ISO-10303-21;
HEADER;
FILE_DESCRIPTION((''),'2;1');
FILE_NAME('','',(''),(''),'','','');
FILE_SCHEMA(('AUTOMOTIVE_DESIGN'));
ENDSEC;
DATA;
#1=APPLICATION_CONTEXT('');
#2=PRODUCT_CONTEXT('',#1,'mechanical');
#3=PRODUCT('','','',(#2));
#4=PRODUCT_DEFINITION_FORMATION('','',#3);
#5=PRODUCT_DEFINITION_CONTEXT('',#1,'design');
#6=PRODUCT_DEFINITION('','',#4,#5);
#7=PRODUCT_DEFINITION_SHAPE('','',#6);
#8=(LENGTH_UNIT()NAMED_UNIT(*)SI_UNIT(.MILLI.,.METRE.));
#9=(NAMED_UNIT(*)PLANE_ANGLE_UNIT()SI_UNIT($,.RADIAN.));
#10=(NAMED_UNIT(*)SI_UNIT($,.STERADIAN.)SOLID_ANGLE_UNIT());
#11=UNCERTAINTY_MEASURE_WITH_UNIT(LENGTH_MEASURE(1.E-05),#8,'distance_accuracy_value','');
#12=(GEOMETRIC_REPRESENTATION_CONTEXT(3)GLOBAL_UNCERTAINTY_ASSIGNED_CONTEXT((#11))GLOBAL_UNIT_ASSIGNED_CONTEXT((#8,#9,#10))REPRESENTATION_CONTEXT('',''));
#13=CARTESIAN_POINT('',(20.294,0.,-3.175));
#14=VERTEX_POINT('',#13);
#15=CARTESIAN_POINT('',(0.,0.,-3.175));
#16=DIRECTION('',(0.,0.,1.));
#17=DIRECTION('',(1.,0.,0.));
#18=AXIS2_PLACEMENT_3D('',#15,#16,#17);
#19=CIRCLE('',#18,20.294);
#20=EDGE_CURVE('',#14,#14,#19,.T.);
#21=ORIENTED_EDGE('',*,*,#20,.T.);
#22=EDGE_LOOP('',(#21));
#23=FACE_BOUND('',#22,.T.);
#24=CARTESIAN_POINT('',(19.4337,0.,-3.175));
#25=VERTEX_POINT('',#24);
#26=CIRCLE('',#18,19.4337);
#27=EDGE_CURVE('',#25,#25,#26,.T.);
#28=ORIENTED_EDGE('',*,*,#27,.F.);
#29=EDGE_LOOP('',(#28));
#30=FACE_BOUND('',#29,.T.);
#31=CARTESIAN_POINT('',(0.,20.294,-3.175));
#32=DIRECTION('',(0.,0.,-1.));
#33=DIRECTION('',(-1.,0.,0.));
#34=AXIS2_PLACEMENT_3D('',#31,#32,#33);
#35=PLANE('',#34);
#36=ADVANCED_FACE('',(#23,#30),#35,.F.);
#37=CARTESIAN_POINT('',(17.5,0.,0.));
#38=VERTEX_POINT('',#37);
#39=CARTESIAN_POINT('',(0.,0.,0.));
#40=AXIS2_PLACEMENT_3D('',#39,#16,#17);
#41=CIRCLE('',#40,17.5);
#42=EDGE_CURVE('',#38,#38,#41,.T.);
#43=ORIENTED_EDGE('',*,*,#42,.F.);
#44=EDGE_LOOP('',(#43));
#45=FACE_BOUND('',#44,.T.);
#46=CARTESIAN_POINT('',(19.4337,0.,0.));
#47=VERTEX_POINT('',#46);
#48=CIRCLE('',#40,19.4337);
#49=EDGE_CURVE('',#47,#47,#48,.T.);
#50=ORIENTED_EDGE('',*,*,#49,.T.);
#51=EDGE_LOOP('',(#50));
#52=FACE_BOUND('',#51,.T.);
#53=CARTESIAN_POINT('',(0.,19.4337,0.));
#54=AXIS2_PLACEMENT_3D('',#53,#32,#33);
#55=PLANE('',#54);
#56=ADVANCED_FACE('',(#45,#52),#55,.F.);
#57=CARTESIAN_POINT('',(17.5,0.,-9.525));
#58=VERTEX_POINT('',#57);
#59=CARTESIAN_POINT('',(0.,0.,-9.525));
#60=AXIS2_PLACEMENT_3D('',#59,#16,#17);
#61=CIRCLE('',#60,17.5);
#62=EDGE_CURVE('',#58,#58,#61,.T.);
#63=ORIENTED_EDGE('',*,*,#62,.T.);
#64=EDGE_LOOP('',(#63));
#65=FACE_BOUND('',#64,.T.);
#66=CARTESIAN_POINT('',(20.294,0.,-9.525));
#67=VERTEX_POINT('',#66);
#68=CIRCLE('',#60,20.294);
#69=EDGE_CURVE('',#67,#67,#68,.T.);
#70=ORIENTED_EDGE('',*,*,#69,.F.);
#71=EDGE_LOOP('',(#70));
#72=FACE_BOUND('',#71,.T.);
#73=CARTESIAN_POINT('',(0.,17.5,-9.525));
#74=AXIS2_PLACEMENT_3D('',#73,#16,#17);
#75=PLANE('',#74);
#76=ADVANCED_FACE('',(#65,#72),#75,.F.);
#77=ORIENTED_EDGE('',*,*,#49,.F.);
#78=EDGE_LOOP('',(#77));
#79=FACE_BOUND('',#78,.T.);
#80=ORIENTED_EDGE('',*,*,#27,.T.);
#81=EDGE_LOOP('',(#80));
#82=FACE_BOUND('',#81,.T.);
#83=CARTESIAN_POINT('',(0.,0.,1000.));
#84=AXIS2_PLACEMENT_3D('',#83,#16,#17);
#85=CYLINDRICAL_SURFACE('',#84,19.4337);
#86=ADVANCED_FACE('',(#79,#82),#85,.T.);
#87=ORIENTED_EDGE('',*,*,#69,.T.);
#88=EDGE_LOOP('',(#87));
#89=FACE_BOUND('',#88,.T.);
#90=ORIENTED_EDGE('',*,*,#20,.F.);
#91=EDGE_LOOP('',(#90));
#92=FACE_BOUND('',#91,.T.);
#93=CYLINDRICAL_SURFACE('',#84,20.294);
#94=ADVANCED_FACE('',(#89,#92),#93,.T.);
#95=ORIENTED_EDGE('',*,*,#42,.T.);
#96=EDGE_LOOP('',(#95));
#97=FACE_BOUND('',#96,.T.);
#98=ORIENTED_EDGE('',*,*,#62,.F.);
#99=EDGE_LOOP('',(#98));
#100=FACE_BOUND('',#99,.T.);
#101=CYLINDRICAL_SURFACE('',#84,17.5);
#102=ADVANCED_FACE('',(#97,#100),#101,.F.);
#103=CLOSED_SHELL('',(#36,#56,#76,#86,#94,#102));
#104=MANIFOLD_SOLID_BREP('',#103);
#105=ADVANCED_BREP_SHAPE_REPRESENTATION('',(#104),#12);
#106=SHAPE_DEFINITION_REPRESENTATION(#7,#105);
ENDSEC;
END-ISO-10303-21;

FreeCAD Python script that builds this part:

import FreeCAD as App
import Part
import Sketcher

V = App.Vector
Q = App.Units.Quantity

doc = App.newDocument("Part")
body = doc.addObject("PartDesign::Body", "Body")

# Sketch on YZ plane
sketch1 = body.newObject("Sketcher::SketchObject", "Sketch")
sketch1.AttachmentSupport = (doc.getObject("YZ_Plane"), [""])
sketch1.MapMode = "FlatFace"
sketch1.addGeometry(Part.LineSegment(V(17.5, 0, 0), V(17.5, -9.5, 0)), False)
sketch1.addGeometry(Part.LineSegment(V(17.5, -9.5, 0), V(20.3, -9.5, 0)), False)
sketch1.addGeometry(Part.LineSegment(V(20.3, -9.5, 0), V(20.3, -3.2, 0)), False)
sketch1.addGeometry(Part.LineSegment(V(20.3, -3.2, 0), V(19.4, -3.2, 0)), False)
sketch1.addGeometry(Part.LineSegment(V(19.4, -3.2, 0), V(19.4, 0, 0)), False)
sketch1.addGeometry(Part.LineSegment(V(19.4, 0, 0), V(17.5, 0, 0)), False)
sketch1.addConstraint(Sketcher.Constraint("Coincident", 0, 2, 1, 1))
sketch1.addConstraint(Sketcher.Constraint("Coincident", 1, 2, 2, 1))
sketch1.addConstraint(Sketcher.Constraint("Coincident", 2, 2, 3, 1))
sketch1.addConstraint(Sketcher.Constraint("Coincident", 3, 2, 4, 1))
sketch1.addConstraint(Sketcher.Constraint("Coincident", 4, 2, 5, 1))
sketch1.addConstraint(Sketcher.Constraint("Coincident", 5, 2, 0, 1))
sketch1.addConstraint(Sketcher.Constraint("Vertical", 0))
sketch1.addConstraint(Sketcher.Constraint("Horizontal", 1))
sketch1.addConstraint(Sketcher.Constraint("Vertical", 2))
sketch1.addConstraint(Sketcher.Constraint("Horizontal", 3))
sketch1.addConstraint(Sketcher.Constraint("Vertical", 4))
sketch1.addConstraint(Sketcher.Constraint("Horizontal", 5))
sketch1.addConstraint(Sketcher.Constraint("PointOnObject", 4, 2, -1))
sketch1.addConstraint(Sketcher.Constraint("DistanceX", 1, 1, 1, 2, Q("0.11 in")))
sketch1.addConstraint(Sketcher.Constraint("DistanceY", 2, 1, 2, 2, Q("0.25 in")))
sketch1.addConstraint(Sketcher.Constraint("DistanceY", 0, 2, 0, 1, Q("0.375 in")))
sketch1.addConstraint(Sketcher.Constraint("DistanceX", 3, 2, 3, 1, Q("0.8603 mm")))
sketch1.addConstraint(Sketcher.Constraint("DistanceX", -1, 1, 0, 2, Q("17.5 mm")))
revolution = body.newObject("PartDesign::Revolution", "Revolution")
revolution.Profile = sketch1
revolution.ReferenceAxis = (sketch1, ["V_Axis"])
revolution.Angle = 360

doc.recompute()
